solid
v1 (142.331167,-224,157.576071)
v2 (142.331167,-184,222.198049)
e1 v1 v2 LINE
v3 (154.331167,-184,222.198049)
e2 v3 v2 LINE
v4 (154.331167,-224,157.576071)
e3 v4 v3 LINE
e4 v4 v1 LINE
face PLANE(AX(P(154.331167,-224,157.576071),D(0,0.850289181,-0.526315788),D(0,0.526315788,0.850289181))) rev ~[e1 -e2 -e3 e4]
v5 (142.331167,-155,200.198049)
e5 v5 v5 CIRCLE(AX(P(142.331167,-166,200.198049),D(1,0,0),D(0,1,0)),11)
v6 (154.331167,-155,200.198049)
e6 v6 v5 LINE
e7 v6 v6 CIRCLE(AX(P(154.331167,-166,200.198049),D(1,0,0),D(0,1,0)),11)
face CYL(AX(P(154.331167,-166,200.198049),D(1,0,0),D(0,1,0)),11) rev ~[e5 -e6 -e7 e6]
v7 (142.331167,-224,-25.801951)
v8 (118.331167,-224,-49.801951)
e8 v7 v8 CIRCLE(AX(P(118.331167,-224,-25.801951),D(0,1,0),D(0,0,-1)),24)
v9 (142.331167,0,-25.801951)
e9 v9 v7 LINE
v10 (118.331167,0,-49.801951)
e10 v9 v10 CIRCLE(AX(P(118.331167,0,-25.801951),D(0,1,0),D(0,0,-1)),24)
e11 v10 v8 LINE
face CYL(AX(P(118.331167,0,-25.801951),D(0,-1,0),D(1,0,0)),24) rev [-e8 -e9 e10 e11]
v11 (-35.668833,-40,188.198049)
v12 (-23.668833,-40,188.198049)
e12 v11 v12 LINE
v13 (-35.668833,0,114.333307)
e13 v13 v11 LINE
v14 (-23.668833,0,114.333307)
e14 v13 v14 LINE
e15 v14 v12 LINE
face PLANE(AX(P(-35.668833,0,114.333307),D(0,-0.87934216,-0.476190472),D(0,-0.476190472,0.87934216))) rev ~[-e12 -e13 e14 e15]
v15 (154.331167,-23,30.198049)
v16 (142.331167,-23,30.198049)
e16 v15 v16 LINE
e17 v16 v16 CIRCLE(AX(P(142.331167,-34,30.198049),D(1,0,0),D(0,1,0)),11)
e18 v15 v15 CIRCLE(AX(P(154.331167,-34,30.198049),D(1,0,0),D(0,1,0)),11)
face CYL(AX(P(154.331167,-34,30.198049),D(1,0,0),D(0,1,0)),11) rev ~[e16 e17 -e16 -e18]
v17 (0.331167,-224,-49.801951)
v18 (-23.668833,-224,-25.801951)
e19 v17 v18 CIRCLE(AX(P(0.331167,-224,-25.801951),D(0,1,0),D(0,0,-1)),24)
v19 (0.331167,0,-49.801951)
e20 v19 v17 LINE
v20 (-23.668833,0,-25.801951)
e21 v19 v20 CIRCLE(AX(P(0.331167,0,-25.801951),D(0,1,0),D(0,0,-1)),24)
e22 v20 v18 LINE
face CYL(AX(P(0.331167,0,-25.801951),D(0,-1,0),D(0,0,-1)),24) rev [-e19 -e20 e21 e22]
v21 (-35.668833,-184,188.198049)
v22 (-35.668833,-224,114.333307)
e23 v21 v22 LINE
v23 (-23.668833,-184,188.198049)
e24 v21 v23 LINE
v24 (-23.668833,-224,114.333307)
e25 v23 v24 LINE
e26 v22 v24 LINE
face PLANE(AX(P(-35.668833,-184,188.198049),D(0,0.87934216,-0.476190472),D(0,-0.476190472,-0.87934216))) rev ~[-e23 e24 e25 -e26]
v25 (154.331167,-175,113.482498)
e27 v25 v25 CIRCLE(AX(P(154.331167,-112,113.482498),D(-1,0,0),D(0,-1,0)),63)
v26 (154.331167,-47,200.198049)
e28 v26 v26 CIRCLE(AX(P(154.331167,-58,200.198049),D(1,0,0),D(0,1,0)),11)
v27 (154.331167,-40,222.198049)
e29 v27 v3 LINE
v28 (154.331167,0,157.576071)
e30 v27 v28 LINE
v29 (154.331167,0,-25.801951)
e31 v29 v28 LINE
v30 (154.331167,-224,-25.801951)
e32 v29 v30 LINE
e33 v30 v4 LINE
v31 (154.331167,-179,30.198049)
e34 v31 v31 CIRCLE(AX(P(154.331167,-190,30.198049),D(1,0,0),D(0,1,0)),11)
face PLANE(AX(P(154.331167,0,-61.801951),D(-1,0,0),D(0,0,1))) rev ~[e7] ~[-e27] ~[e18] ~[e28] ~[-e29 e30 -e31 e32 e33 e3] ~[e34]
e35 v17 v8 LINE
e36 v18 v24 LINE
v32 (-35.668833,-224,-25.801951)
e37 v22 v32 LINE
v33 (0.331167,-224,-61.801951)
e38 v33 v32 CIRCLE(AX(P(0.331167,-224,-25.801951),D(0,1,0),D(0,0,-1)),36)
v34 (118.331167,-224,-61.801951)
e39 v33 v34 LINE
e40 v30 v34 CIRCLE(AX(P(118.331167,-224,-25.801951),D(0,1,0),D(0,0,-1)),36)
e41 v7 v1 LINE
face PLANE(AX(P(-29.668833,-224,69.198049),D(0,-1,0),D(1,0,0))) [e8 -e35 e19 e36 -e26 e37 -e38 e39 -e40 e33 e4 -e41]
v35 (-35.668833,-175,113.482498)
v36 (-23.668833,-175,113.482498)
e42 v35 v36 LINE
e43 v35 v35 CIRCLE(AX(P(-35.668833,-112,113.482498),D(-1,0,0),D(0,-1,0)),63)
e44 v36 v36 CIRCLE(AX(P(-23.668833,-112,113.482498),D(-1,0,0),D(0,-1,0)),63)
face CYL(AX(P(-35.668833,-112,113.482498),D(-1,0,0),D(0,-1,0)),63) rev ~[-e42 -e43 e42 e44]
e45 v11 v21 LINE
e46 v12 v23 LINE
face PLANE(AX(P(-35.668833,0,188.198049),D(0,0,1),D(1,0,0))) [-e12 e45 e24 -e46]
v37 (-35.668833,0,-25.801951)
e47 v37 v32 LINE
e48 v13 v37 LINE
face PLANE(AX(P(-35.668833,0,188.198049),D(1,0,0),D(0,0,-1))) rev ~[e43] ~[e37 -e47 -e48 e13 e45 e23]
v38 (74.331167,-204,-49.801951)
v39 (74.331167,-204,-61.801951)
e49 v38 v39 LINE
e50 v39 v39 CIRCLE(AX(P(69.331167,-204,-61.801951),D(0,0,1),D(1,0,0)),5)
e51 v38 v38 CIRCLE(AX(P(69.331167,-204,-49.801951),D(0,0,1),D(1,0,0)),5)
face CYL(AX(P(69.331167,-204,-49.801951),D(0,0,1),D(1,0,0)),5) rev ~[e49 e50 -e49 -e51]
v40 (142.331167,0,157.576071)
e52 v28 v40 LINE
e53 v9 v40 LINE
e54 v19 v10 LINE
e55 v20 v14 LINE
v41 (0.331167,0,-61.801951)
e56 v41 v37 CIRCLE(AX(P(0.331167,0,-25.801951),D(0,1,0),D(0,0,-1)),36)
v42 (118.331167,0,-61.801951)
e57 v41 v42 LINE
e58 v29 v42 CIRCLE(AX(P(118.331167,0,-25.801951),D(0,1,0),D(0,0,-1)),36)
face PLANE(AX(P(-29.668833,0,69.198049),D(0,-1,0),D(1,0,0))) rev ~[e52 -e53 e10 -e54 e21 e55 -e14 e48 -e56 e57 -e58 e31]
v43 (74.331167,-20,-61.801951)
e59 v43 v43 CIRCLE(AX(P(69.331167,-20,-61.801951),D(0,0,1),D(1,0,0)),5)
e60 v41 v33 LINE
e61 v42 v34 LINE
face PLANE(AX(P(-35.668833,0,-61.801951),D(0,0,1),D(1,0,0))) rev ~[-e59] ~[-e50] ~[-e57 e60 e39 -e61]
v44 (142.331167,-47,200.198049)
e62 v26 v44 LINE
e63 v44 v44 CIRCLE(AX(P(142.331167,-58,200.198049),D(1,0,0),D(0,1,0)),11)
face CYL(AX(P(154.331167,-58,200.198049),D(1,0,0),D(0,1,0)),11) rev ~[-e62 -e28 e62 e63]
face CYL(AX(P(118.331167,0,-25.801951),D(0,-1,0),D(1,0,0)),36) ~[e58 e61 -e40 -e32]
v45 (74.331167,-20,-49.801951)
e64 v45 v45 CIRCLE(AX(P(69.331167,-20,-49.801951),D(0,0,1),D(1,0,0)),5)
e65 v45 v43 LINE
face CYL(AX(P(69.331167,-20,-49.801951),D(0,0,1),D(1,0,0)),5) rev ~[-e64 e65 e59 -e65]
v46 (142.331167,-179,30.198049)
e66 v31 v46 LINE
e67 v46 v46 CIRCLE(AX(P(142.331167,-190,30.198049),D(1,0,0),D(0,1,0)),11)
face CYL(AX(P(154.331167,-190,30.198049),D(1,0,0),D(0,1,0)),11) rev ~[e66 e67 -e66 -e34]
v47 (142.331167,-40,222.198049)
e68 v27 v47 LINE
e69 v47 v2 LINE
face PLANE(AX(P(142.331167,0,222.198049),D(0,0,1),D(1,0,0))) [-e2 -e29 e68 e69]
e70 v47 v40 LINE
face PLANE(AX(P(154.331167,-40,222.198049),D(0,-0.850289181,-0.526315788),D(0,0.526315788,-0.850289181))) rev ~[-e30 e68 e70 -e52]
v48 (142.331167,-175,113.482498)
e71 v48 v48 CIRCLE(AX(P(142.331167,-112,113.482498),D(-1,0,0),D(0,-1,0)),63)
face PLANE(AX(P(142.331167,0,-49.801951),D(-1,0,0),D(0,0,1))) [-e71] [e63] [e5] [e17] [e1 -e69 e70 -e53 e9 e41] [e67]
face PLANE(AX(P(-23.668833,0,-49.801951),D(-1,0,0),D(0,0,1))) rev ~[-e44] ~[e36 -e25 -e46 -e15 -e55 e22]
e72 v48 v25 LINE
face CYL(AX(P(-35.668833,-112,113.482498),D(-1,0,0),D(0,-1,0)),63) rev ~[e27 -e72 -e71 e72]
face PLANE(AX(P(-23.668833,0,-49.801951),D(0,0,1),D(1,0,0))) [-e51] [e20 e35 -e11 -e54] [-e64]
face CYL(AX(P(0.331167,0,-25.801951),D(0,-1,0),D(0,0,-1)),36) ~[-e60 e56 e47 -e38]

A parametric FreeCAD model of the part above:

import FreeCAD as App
import Part
import Sketcher
from FreeCAD import Vector


def edges_at(feature, points):
    """Names of the edges that pass closest to the given points."""
    edges = feature.Shape.Edges
    near = lambda p: min(range(len(edges)), key=lambda i: edges[i].distToShape(Part.Vertex(*p))[0])
    return sorted({f"Edge{near(p) + 1}" for p in points})


def add_polygon(sketch, points):
    """Adds a closed chain of lines whose ends are joined by coincident constraints."""
    first, n = sketch.GeometryCount, len(points)
    for a, b in zip(points, points[1:] + points[:1]):
        sketch.addGeometry(Part.LineSegment(App.Vector(*a, 0), App.Vector(*b, 0)), False)
    for i in range(n):
        sketch.addConstraint(Sketcher.Constraint("Coincident", first + i, 2, first + (i + 1) % n, 1))

doc = App.newDocument("Part")
body = doc.addObject("PartDesign::Body", "Body")

# Sketch on XZ plane
sketch1 = body.newObject("Sketcher::SketchObject", "Sketch")
sketch1.AttachmentSupport = (doc.getObject("XZ_Plane"), [""])
sketch1.MapMode = "FlatFace"
add_polygon(sketch1, [(-36, 188), (-36, -62), (154, -62), (154, 222), (142, 222), (142, -50), (-24, -50), (-24, 188)])  # lines 0-7
sketch1.addConstraint(Sketcher.Constraint("Vertical", 0))
sketch1.addConstraint(Sketcher.Constraint("Horizontal", 1))
sketch1.addConstraint(Sketcher.Constraint("Vertical", 2))
sketch1.addConstraint(Sketcher.Constraint("Horizontal", 3))
sketch1.addConstraint(Sketcher.Constraint("Vertical", 4))
sketch1.addConstraint(Sketcher.Constraint("Horizontal", 5))
sketch1.addConstraint(Sketcher.Constraint("Vertical", 6))
sketch1.addConstraint(Sketcher.Constraint("Horizontal", 7))
sketch1.addConstraint(Sketcher.Constraint("Equal", 3, 7))
sketch1.addConstraint(Sketcher.Constraint("DistanceX", 1, 1, 1, 2, 190.0))
sketch1.addConstraint(Sketcher.Constraint("DistanceX", 3, 2, 3, 1, 12.0))
sketch1.addConstraint(Sketcher.Constraint("DistanceY", 0, 2, 0, 1, 250.0))
sketch1.addConstraint(Sketcher.Constraint("DistanceY", 2, 1, 2, 2, 284.0))
sketch1.addConstraint(Sketcher.Constraint("DistanceY", 4, 2, 4, 1, 272.0))
sketch1.addConstraint(Sketcher.Constraint("DistanceY", 0, 2, -1, 1, 61.801951))
sketch1.addConstraint(Sketcher.Constraint("DistanceX", 0, 2, -1, 1, 35.668833))
pad1 = body.newObject("PartDesign::Pad", "Pad")
pad1.Profile = sketch1
pad1.Length = 224
doc.recompute()

fillet = body.newObject("PartDesign::Fillet", "Fillet")
fillet.Base = (pad1, edges_at(pad1, [(-23.669, -112, -49.802), (142.331, -112, -49.802)]))
fillet.Radius = 24
doc.recompute()

fillet2 = body.newObject("PartDesign::Fillet", "Fillet001")
fillet2.Base = (fillet, edges_at(fillet, [(154.331, -112, -61.802), (-35.669, -112, -61.802)]))
fillet2.Radius = 36

# Sketch on YZ plane
sketch2 = body.newObject("Sketcher::SketchObject", "Sketch001")
sketch2.AttachmentSupport = (doc.getObject("YZ_Plane"), [""])
sketch2.MapMode = "FlatFace"
sketch2.AttachmentOffset = App.Placement(Vector(0, 0, -35.668833), App.Rotation())
add_polygon(sketch2, [(0, 114), (-40, 188), (0, 188)])  # lines 0-2
add_polygon(sketch2, [(-224, 188), (-184, 188), (-224, 114)])  # lines 3-5
sketch2.addConstraint(Sketcher.Constraint("Horizontal", 1))
sketch2.addConstraint(Sketcher.Constraint("Vertical", 2))
sketch2.addConstraint(Sketcher.Constraint("Horizontal", 3))
sketch2.addConstraint(Sketcher.Constraint("Vertical", 5))
sketch2.addConstraint(Sketcher.Constraint("PointOnObject", 1, 2, -2))
sketch2.addConstraint(Sketcher.Constraint("Horizontal", 1, 2, 3, 2))
sketch2.addConstraint(Sketcher.Constraint("Horizontal", 2, 2, 4, 2))
sketch2.addConstraint(Sketcher.Constraint("Equal", 1, 3))
sketch2.addConstraint(Sketcher.Constraint("DistanceX", 1, 1, 1, 2, 40.0))
sketch2.addConstraint(Sketcher.Constraint("Distance", 0, 84.000001))
sketch2.addConstraint(Sketcher.Constraint("DistanceX", 3, 2, -1, 1, 184.0))
sketch2.addConstraint(Sketcher.Constraint("DistanceY", -1, 1, 0, 2, 188.198049))
pocket1 = body.newObject("PartDesign::Pocket", "Pocket")
pocket1.Profile = sketch2
pocket1.Length = 12
pocket1.Reversed = True

# Sketch on YZ plane
sketch3 = body.newObject("Sketcher::SketchObject", "Sketch002")
sketch3.AttachmentSupport = (doc.getObject("YZ_Plane"), [""])
sketch3.MapMode = "FlatFace"
sketch3.AttachmentOffset = App.Placement(Vector(0, 0, 154.331167), App.Rotation())
add_polygon(sketch3, [(-224, 222), (-224, 158), (-184, 222)])  # lines 0-2
add_polygon(sketch3, [(0, 222), (-40, 222), (0, 158)])  # lines 3-5
sketch3.addConstraint(Sketcher.Constraint("Vertical", 0))
sketch3.addConstraint(Sketcher.Constraint("Horizontal", 2))
sketch3.addConstraint(Sketcher.Constraint("Horizontal", 3))
sketch3.addConstraint(Sketcher.Constraint("Vertical", 5))
sketch3.addConstraint(Sketcher.Constraint("PointOnObject", 4, 2, -2))
sketch3.addConstraint(Sketcher.Constraint("Horizontal", 2, 2, 3, 2))
sketch3.addConstraint(Sketcher.Constraint("Horizontal", 0, 2, 4, 2))
sketch3.addConstraint(Sketcher.Constraint("Equal", 2, 3))
sketch3.addConstraint(Sketcher.Constraint("DistanceX", 2, 2, 2, 1, 40.0))
sketch3.addConstraint(Sketcher.Constraint("Distance", 1, 76.0))
sketch3.addConstraint(Sketcher.Constraint("DistanceX", 0, 2, -1, 1, 224.0))
sketch3.addConstraint(Sketcher.Constraint("DistanceY", -1, 1, 0, 2, 157.576071))
pocket2 = body.newObject("PartDesign::Pocket", "Pocket001")
pocket2.Profile = sketch3
pocket2.Length = 12

# Sketch on YZ plane
sketch4 = body.newObject("Sketcher::SketchObject", "Sketch003")
sketch4.AttachmentSupport = (doc.getObject("YZ_Plane"), [""])
sketch4.MapMode = "FlatFace"
sketch4.AttachmentOffset = App.Placement(Vector(0, 0, -35.668833), App.Rotation())
sketch4.addGeometry(Part.Circle(Vector(-112, 113, 0), Vector(0, 0, 1), 63), False)
sketch4.addConstraint(Sketcher.Constraint("Diameter", 0, 126.0))
sketch4.addConstraint(Sketcher.Constraint("DistanceX", 0, 3, -1, 1, 112.0))
sketch4.addConstraint(Sketcher.Constraint("DistanceY", -1, 1, 0, 3, 113.482498))
pocket3 = body.newObject("PartDesign::Pocket", "Pocket002")
pocket3.Profile = sketch4
pocket3.Length = 190
pocket3.Reversed = True

# Sketch on YZ plane
sketch5 = body.newObject("Sketcher::SketchObject", "Sketch004")
sketch5.AttachmentSupport = (doc.getObject("YZ_Plane"), [""])
sketch5.MapMode = "FlatFace"
sketch5.AttachmentOffset = App.Placement(Vector(0, 0, 154.331167), App.Rotation())
sketch5.addGeometry(Part.Circle(Vector(-166, 200, 0), Vector(0, 0, 1), 11), False)
sketch5.addGeometry(Part.Circle(Vector(-58, 200, 0), Vector(0, 0, 1), 11), False)
sketch5.addGeometry(Part.Circle(Vector(-34, 30, 0), Vector(0, 0, 1), 11), False)
sketch5.addGeometry(Part.Circle(Vector(-190, 30, 0), Vector(0, 0, 1), 11), False)
sketch5.addConstraint(Sketcher.Constraint("Equal", 0, 1))
sketch5.addConstraint(Sketcher.Constraint("Equal", 1, 2))
sketch5.addConstraint(Sketcher.Constraint("Equal", 2, 3))
sketch5.addConstraint(Sketcher.Constraint("Horizontal", 0, 3, 1, 3))
sketch5.addConstraint(Sketcher.Constraint("Horizontal", 2, 3, 3, 3))
sketch5.addConstraint(Sketcher.Constraint("Diameter", 0, 22.0))
sketch5.addConstraint(Sketcher.Constraint("DistanceX", 0, 3, -1, 1, 166.0))
sketch5.addConstraint(Sketcher.Constraint("DistanceX", 1, 3, -1, 1, 58.0))
sketch5.addConstraint(Sketcher.Constraint("DistanceX", 2, 3, -1, 1, 34.0))
sketch5.addConstraint(Sketcher.Constraint("DistanceX", 3, 3, -1, 1, 190.0))
sketch5.addConstraint(Sketcher.Constraint("DistanceY", 2, 3, 1, 3, 170.0))
sketch5.addConstraint(Sketcher.Constraint("DistanceY", -1, 1, 0, 3, 200.198049))
pocket4 = body.newObject("PartDesign::Pocket", "Pocket003")
pocket4.Profile = sketch5
pocket4.Length = 25

# Sketch on XY plane
sketch6 = body.newObject("Sketcher::SketchObject", "Sketch005")
sketch6.AttachmentSupport = (doc.getObject("XY_Plane"), [""])
sketch6.MapMode = "FlatFace"
sketch6.AttachmentOffset = App.Placement(Vector(0, 0, -49.801951), App.Rotation())
sketch6.addGeometry(Part.Circle(Vector(69, -204, 0), Vector(0, 0, 1), 5), False)
sketch6.addGeometry(Part.Circle(Vector(69, -20, 0), Vector(0, 0, 1), 5), False)
sketch6.addConstraint(Sketcher.Constraint("Equal", 0, 1))
sketch6.addConstraint(Sketcher.Constraint("Vertical", 0, 3, 1, 3))
sketch6.addConstraint(Sketcher.Constraint("Diameter", 0, 10.0))
sketch6.addConstraint(Sketcher.Constraint("DistanceY", 0, 3, -1, 1, 204.0))
sketch6.addConstraint(Sketcher.Constraint("DistanceY", 1, 3, -1, 1, 20.0))
sketch6.addConstraint(Sketcher.Constraint("DistanceX", -1, 1, 0, 3, 69.331167))
pocket5 = body.newObject("PartDesign::Pocket", "Pocket004")
pocket5.Profile = sketch6
pocket5.Length = 25

doc.recompute()
